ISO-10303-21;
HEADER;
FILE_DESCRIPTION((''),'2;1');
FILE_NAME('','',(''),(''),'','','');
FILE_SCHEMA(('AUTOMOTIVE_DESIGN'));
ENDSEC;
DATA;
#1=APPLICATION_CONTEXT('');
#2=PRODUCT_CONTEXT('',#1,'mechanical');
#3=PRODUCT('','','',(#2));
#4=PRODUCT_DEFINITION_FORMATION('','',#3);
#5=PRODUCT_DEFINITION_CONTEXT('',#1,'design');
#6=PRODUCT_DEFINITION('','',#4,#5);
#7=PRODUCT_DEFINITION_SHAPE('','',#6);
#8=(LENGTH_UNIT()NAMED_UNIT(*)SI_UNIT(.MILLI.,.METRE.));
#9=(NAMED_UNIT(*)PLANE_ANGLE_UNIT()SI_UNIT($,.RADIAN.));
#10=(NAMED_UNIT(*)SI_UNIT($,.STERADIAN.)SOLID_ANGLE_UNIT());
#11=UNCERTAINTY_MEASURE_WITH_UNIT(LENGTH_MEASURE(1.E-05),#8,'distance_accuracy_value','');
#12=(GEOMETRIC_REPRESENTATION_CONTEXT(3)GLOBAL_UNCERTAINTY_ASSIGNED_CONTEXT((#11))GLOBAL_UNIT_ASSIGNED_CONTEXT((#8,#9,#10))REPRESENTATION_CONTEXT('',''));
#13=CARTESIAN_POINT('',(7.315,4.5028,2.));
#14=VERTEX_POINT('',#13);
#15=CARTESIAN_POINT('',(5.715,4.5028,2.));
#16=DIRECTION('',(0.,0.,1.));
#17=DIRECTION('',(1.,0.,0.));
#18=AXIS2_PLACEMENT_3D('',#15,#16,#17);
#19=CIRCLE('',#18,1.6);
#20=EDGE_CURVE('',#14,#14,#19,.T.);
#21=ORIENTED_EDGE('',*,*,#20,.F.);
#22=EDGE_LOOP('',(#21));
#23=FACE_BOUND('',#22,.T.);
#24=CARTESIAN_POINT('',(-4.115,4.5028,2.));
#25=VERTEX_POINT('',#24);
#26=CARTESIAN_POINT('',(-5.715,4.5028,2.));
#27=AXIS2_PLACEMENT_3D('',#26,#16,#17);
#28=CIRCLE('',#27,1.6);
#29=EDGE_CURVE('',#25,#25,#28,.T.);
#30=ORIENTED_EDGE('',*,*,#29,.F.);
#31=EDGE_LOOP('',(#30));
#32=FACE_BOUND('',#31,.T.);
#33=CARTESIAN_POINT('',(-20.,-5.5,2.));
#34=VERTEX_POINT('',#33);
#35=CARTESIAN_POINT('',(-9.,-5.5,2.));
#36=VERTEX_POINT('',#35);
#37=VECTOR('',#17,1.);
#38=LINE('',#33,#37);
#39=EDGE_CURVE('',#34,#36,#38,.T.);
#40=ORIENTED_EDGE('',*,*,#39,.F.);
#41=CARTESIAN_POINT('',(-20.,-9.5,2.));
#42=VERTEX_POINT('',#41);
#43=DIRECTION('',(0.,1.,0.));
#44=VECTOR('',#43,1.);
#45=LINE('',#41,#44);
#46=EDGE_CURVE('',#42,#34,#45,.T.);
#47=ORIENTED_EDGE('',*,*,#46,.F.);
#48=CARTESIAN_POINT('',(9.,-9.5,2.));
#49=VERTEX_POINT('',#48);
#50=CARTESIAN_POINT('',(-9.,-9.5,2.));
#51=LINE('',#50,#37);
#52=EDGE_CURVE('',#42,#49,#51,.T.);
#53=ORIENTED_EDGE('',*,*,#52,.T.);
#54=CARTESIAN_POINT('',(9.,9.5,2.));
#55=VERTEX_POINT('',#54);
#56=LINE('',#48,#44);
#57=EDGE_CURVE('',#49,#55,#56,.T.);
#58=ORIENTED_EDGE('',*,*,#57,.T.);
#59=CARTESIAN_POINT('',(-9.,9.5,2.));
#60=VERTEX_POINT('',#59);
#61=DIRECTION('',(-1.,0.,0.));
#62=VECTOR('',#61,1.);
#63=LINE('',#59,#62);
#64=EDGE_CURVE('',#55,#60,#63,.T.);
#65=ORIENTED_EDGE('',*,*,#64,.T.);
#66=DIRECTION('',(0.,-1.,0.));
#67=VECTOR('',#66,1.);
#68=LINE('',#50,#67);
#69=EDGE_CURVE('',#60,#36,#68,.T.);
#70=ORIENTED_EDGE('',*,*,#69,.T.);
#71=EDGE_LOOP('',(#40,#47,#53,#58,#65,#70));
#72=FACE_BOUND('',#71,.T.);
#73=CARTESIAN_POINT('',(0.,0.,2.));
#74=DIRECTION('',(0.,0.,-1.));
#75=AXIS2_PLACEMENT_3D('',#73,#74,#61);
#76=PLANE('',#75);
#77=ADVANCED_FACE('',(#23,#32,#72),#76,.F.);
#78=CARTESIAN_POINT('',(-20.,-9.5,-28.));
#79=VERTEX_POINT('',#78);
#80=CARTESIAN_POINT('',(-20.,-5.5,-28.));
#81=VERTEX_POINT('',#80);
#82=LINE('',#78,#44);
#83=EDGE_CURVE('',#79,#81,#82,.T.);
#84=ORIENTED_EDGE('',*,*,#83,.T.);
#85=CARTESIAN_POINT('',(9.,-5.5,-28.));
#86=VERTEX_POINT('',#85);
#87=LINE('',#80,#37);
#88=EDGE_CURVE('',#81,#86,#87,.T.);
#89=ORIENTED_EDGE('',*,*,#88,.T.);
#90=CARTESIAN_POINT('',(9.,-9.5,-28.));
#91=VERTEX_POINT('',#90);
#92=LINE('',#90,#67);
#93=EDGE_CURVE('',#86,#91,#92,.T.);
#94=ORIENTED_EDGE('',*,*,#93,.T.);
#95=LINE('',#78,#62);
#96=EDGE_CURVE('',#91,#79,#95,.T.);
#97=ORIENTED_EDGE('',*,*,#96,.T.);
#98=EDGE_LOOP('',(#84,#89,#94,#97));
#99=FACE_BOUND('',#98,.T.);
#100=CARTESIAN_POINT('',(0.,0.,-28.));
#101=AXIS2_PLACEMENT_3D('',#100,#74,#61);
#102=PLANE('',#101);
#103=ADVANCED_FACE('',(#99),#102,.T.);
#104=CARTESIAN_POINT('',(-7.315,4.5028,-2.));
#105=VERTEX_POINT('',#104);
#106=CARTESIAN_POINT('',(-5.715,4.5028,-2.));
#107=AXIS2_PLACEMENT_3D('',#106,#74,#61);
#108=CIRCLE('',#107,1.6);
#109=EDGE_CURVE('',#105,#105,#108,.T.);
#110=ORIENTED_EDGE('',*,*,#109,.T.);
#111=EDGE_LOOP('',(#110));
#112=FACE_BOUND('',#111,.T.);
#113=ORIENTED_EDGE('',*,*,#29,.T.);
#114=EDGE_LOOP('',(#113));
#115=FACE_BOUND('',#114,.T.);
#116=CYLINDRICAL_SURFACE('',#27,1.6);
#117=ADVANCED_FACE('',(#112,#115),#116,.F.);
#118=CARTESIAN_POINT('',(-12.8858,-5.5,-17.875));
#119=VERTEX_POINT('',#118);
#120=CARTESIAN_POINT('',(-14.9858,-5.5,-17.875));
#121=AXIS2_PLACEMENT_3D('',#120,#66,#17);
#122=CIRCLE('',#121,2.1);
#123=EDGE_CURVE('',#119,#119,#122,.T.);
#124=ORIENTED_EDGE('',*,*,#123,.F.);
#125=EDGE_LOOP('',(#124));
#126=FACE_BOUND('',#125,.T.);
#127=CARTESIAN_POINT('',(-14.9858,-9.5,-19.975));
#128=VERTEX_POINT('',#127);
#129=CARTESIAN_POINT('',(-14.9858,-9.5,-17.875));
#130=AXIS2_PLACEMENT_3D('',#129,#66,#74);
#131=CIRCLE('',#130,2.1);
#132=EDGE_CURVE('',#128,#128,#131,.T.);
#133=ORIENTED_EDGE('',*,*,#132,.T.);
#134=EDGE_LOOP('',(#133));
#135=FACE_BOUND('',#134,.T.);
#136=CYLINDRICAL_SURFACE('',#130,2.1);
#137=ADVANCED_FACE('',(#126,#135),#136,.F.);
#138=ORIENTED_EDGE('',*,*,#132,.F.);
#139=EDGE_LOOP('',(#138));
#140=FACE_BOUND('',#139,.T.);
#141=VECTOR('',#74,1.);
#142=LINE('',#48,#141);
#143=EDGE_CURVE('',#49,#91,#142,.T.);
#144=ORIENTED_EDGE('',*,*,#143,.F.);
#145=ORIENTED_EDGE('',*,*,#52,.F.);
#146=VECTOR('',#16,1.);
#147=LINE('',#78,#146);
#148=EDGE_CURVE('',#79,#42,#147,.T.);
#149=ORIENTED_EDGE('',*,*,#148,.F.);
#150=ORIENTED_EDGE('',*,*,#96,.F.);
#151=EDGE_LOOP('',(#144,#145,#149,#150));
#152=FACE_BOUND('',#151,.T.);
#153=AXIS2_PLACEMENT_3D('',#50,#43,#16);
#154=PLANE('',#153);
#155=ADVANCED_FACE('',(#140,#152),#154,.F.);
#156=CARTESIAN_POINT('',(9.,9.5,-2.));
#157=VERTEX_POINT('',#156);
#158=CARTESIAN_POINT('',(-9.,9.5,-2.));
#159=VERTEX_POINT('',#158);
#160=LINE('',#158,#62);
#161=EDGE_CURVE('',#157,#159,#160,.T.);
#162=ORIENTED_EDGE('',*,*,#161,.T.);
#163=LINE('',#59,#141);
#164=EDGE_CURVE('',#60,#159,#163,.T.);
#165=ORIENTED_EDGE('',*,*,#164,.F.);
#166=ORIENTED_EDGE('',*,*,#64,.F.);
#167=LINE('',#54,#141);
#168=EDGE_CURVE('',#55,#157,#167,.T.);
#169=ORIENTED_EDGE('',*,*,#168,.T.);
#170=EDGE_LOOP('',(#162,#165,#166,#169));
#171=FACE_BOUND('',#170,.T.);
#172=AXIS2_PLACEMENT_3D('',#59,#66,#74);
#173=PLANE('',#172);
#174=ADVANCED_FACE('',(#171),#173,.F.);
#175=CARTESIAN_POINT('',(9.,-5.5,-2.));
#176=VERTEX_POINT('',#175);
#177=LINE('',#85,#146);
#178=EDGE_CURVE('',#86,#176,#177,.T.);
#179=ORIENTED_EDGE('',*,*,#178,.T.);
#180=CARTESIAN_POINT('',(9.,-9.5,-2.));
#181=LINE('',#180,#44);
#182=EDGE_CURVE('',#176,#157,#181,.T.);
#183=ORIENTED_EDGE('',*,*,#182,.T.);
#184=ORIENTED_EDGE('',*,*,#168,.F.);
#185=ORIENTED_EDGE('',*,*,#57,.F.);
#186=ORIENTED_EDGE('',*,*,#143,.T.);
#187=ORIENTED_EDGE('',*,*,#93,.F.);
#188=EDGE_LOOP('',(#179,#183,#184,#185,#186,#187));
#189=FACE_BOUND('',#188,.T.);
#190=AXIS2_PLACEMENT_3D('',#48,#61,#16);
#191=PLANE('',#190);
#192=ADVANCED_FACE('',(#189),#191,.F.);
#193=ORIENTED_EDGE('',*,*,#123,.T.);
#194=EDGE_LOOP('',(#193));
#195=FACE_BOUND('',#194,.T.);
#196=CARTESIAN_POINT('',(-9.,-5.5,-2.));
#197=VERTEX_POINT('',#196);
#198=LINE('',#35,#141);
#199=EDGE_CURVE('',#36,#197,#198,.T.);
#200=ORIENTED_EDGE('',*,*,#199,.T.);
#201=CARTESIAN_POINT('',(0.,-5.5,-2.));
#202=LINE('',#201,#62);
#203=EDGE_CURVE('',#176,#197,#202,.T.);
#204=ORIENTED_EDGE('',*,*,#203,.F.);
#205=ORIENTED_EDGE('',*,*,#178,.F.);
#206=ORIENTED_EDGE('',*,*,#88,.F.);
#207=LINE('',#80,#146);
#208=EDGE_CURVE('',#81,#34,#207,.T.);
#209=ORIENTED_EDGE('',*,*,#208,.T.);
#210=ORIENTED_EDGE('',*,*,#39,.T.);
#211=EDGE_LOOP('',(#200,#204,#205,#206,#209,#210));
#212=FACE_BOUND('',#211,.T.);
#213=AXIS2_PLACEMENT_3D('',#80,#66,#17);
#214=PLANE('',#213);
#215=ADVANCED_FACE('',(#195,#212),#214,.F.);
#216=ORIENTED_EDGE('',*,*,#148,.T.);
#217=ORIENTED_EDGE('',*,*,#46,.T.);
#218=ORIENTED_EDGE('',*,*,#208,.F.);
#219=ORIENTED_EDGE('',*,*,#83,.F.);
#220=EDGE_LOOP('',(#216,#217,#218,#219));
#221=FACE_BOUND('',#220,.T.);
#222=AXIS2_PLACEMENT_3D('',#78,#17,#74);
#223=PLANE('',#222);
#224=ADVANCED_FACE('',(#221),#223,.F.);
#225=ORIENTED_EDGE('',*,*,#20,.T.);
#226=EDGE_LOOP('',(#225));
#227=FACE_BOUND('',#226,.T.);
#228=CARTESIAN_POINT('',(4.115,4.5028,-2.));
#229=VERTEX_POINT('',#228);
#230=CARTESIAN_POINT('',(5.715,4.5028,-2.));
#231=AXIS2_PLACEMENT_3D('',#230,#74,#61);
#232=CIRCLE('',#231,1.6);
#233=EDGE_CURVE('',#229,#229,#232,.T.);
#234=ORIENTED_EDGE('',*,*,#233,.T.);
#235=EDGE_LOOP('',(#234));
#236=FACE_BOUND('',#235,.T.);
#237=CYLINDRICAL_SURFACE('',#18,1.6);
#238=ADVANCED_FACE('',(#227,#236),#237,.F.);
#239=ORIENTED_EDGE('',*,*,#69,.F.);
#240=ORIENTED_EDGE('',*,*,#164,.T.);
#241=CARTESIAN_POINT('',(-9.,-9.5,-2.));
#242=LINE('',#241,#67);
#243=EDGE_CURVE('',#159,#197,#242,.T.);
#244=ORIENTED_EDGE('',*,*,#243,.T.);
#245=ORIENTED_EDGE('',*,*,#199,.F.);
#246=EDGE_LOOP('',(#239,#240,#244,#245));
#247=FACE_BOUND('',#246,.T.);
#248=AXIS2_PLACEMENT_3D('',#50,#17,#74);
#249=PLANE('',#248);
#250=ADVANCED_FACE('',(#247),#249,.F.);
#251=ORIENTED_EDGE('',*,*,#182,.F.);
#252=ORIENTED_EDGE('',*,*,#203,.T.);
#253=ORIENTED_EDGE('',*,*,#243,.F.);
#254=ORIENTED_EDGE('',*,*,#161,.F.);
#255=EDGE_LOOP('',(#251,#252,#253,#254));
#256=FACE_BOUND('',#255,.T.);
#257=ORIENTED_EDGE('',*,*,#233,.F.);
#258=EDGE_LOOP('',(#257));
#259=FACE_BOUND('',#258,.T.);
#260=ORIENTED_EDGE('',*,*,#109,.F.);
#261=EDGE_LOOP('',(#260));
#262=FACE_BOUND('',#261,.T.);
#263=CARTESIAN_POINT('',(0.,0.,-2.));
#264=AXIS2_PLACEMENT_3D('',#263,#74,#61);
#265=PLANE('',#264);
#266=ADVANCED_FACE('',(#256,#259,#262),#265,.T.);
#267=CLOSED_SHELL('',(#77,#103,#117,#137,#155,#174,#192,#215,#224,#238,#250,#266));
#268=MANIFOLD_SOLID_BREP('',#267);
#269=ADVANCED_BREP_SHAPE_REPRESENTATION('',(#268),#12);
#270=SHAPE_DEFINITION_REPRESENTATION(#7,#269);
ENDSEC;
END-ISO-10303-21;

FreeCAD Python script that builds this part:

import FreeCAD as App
import Part
import Sketcher
from FreeCAD import Vector
Q = App.Units.Quantity


def add_polygon(sketch, points):
    """Adds a closed chain of lines whose ends are joined by coincident constraints."""
    first, n = sketch.GeometryCount, len(points)
    for a, b in zip(points, points[1:] + points[:1]):
        sketch.addGeometry(Part.LineSegment(App.Vector(*a, 0), App.Vector(*b, 0)), False)
    for i in range(n):
        sketch.addConstraint(Sketcher.Constraint("Coincident", first + i, 2, first + (i + 1) % n, 1))

doc = App.newDocument("Part")
body = doc.addObject("PartDesign::Body", "Body")

sketch1 = body.newObject("Sketcher::SketchObject", "Sketch")
sketch1.AttachmentSupport = (doc.getObject("XY_Plane"), [""])
sketch1.MapMode = "FlatFace"
add_polygon(sketch1, [(-9, 10), (-9, -10), (9, -10), (9, 10)])
sketch1.addConstraint([
    Sketcher.Constraint("Vertical", 0),
    Sketcher.Constraint("Horizontal", 1),
    Sketcher.Constraint("Vertical", 2),
    Sketcher.Constraint("Horizontal", 3),
    Sketcher.Constraint("Symmetric", 0, 2, 2, 2, -1, 1),
    Sketcher.Constraint("DistanceX", 1, 1, 1, 2, Q("18 mm")),
    Sketcher.Constraint("DistanceY", 0, 2, 0, 1, Q("19 mm")),
])
pad1 = body.newObject("PartDesign::Pad", "Pad")
pad1.Profile = sketch1
pad1.Length = 4
pad1.Midplane = True

sketch2 = body.newObject("Sketcher::SketchObject", "Sketch001")
sketch2.AttachmentSupport = (doc.getObject("XY_Plane"), [""])
sketch2.MapMode = "FlatFace"
sketch2.AttachmentOffset = App.Placement(Vector(0, 0, 2), App.Rotation())
add_polygon(sketch2, [(9, -5.5), (9, -9.5), (-20, -9.5), (-20, -5.5)])
sketch2.addConstraint([
    Sketcher.Constraint("Vertical", 0),
    Sketcher.Constraint("Horizontal", 1),
    Sketcher.Constraint("Vertical", 2),
    Sketcher.Constraint("Horizontal", 3),
    Sketcher.Constraint("DistanceX", 1, 2, 1, 1, Q("29 mm")),
    Sketcher.Constraint("DistanceY", 0, 2, 0, 1, Q("4 mm")),
    Sketcher.Constraint("DistanceX", -1, 1, 0, 2, Q("9 mm")),
    Sketcher.Constraint("DistanceY", 0, 2, -1, 1, Q("9.5 mm")),
])
pad2 = body.newObject("PartDesign::Pad", "Pad001")
pad2.Profile = sketch2
pad2.Length = 30
pad2.Reversed = True

sketch3 = body.newObject("Sketcher::SketchObject", "Sketch002")
sketch3.AttachmentSupport = (doc.getObject("XY_Plane"), [""])
sketch3.MapMode = "FlatFace"
sketch3.AttachmentOffset = App.Placement(Vector(0, 0, 2), App.Rotation())
sketch3.addGeometry([
    Part.Circle(Vector(-5.7, 4.5, 0), Vector(0, 0, 1), 1.6),
    Part.Circle(Vector(5.7, 4.5, 0), Vector(0, 0, 1), 1.6),
], False)
sketch3.addConstraint([
    Sketcher.Constraint("Equal", 0, 1),
    Sketcher.Constraint("Symmetric", 0, 3, 1, 3, -2),
    Sketcher.Constraint("Diameter", 0, Q("3.2 mm")),
    Sketcher.Constraint("DistanceX", 0, 3, 1, 3, Q("11.43 mm")),
    Sketcher.Constraint("DistanceY", -1, 1, 0, 3, Q("4.5028 mm")),
])
doc.recompute()
hole = body.newObject("PartDesign::Hole", "Hole")
hole.Profile = sketch3
hole.ThreadType = "None"
hole.Diameter = 3.2
hole.DepthType = "ThroughAll"

sketch4 = body.newObject("Sketcher::SketchObject", "Sketch003")
sketch4.AttachmentSupport = (doc.getObject("XZ_Plane"), [""])
sketch4.MapMode = "FlatFace"
sketch4.AttachmentOffset = App.Placement(Vector(0, 0, 9.5), App.Rotation())
sketch4.addGeometry(Part.Circle(Vector(-15, -17.9, 0), Vector(0, 0, 1), 2.1), False)
sketch4.addConstraint([
    Sketcher.Constraint("Diameter", 0, Q("4.2 mm")),
    Sketcher.Constraint("DistanceY", 0, 3, -1, 1, Q("17.875 mm")),
    Sketcher.Constraint("DistanceX", 0, 3, -1, 1, Q("14.9858 mm")),
])
doc.recompute()
hole2 = body.newObject("PartDesign::Hole", "Hole001")
hole2.Profile = sketch4
hole2.ThreadType = "None"
hole2.Diameter = 4.2
hole2.DepthType = "ThroughAll"

doc.recompute()
